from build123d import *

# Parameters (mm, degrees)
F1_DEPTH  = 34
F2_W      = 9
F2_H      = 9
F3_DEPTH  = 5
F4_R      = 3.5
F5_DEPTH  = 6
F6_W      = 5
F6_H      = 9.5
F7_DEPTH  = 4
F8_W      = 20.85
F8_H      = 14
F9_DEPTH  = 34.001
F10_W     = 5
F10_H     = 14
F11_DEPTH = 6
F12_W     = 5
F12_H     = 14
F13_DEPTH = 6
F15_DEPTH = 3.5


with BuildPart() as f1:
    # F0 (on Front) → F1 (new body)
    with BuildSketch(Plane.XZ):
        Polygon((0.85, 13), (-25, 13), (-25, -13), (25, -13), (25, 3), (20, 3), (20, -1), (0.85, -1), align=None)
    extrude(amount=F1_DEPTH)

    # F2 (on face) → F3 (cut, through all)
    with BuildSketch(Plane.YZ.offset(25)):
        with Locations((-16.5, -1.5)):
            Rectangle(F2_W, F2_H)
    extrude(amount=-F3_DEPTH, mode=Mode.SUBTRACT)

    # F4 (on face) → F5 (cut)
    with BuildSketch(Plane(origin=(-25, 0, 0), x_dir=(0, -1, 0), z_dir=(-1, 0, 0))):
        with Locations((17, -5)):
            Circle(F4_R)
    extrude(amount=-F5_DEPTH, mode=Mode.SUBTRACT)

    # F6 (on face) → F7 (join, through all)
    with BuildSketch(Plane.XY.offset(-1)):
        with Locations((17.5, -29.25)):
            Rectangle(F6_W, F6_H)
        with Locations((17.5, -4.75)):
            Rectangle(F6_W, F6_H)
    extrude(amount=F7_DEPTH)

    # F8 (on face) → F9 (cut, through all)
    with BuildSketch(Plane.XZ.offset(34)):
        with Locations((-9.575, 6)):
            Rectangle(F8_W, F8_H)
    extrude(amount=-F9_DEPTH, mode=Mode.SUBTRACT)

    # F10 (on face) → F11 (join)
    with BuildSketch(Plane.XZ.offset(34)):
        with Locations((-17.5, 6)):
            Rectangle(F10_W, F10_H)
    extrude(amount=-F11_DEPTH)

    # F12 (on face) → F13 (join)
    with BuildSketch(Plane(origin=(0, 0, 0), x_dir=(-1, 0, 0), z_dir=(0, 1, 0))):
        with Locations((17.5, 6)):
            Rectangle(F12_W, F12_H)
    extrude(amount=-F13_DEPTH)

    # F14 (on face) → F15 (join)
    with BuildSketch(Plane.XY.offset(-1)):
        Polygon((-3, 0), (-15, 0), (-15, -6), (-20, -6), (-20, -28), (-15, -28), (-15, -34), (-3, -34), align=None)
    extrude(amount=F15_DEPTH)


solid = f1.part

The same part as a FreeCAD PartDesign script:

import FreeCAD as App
import Part
import Sketcher

V = App.Vector

doc = App.newDocument("Part")
body = doc.addObject("PartDesign::Body", "Body")

# Sketch on XZ plane
sketch1 = body.newObject("Sketcher::SketchObject", "Sketch")
sketch1.AttachmentSupport = (doc.getObject("XZ_Plane"), [""])
sketch1.MapMode = "FlatFace"
sketch1.addGeometry(Part.LineSegment(V(0.85, 13, 0), V(-25, 13, 0)), False)
sketch1.addGeometry(Part.LineSegment(V(-25, 13, 0), V(-25, -13, 0)), False)
sketch1.addGeometry(Part.LineSegment(V(-25, -13, 0), V(25, -13, 0)), False)
sketch1.addGeometry(Part.LineSegment(V(25, -13, 0), V(25, 3, 0)), False)
sketch1.addGeometry(Part.LineSegment(V(25, 3, 0), V(20, 3, 0)), False)
sketch1.addGeometry(Part.LineSegment(V(20, 3, 0), V(20, -1, 0)), False)
sketch1.addGeometry(Part.LineSegment(V(20, -1, 0), V(0.85, -1, 0)), False)
sketch1.addGeometry(Part.LineSegment(V(0.85, -1, 0), V(0.85, 13, 0)), False)
sketch1.addConstraint(Sketcher.Constraint("Coincident", 0, 2, 1, 1))
sketch1.addConstraint(Sketcher.Constraint("Coincident", 1, 2, 2, 1))
sketch1.addConstraint(Sketcher.Constraint("Coincident", 2, 2, 3, 1))
sketch1.addConstraint(Sketcher.Constraint("Coincident", 3, 2, 4, 1))
sketch1.addConstraint(Sketcher.Constraint("Coincident", 4, 2, 5, 1))
sketch1.addConstraint(Sketcher.Constraint("Coincident", 5, 2, 6, 1))
sketch1.addConstraint(Sketcher.Constraint("Coincident", 6, 2, 7, 1))
sketch1.addConstraint(Sketcher.Constraint("Coincident", 7, 2, 0, 1))
sketch1.addConstraint(Sketcher.Constraint("Horizontal", 0))
sketch1.addConstraint(Sketcher.Constraint("Vertical", 1))
sketch1.addConstraint(Sketcher.Constraint("Horizontal", 2))
sketch1.addConstraint(Sketcher.Constraint("Vertical", 3))
sketch1.addConstraint(Sketcher.Constraint("Horizontal", 4))
sketch1.addConstraint(Sketcher.Constraint("Vertical", 5))
sketch1.addConstraint(Sketcher.Constraint("Horizontal", 6))
sketch1.addConstraint(Sketcher.Constraint("Vertical", 7))
sketch1.addConstraint(Sketcher.Constraint("Symmetric", 0, 2, 2, 2, -1, 1))
sketch1.addConstraint(Sketcher.Constraint("DistanceX", 2, 1, 2, 2, 50.0))
sketch1.addConstraint(Sketcher.Constraint("DistanceX", 4, 2, 4, 1, 5.0))
sketch1.addConstraint(Sketcher.Constraint("DistanceY", 1, 2, 1, 1, 26.0))
sketch1.addConstraint(Sketcher.Constraint("DistanceY", 3, 1, 3, 2, 16.0))
sketch1.addConstraint(Sketcher.Constraint("DistanceY", 5, 2, 5, 1, 4.0))
sketch1.addConstraint(Sketcher.Constraint("DistanceX", 0, 2, 0, 1, 25.85))
pad1 = body.newObject("PartDesign::Pad", "Pad")
pad1.Profile = sketch1
pad1.Length = 34

# Sketch on YZ plane
sketch2 = body.newObject("Sketcher::SketchObject", "Sketch001")
sketch2.AttachmentSupport = (doc.getObject("YZ_Plane"), [""])
sketch2.MapMode = "FlatFace"
sketch2.AttachmentOffset = App.Placement(V(0, 0, 25), App.Rotation())
sketch2.addGeometry(Part.LineSegment(V(-21, 3, 0), V(-21, -6, 0)), False)
sketch2.addGeometry(Part.LineSegment(V(-21, -6, 0), V(-12, -6, 0)), False)
sketch2.addGeometry(Part.LineSegment(V(-12, -6, 0), V(-12, 3, 0)), False)
sketch2.addGeometry(Part.LineSegment(V(-12, 3, 0), V(-21, 3, 0)), False)
sketch2.addConstraint(Sketcher.Constraint("Coincident", 0, 2, 1, 1))
sketch2.addConstraint(Sketcher.Constraint("Coincident", 1, 2, 2, 1))
sketch2.addConstraint(Sketcher.Constraint("Coincident", 2, 2, 3, 1))
sketch2.addConstraint(Sketcher.Constraint("Coincident", 3, 2, 0, 1))
sketch2.addConstraint(Sketcher.Constraint("Vertical", 0))
sketch2.addConstraint(Sketcher.Constraint("Horizontal", 1))
sketch2.addConstraint(Sketcher.Constraint("Vertical", 2))
sketch2.addConstraint(Sketcher.Constraint("Horizontal", 3))
sketch2.addConstraint(Sketcher.Constraint("Equal", 3, 0))
sketch2.addConstraint(Sketcher.Constraint("DistanceX", 1, 1, 1, 2, 9.0))
sketch2.addConstraint(Sketcher.Constraint("DistanceX", 0, 2, -1, 1, 21.0))
sketch2.addConstraint(Sketcher.Constraint("DistanceY", 0, 2, -1, 1, 6.0))
pocket1 = body.newObject("PartDesign::Pocket", "Pocket")
pocket1.Profile = sketch2
pocket1.Length = 5

# Sketch on YZ plane
sketch3 = body.newObject("Sketcher::SketchObject", "Sketch002")
sketch3.AttachmentSupport = (doc.getObject("YZ_Plane"), [""])
sketch3.MapMode = "FlatFace"
sketch3.AttachmentOffset = App.Placement(V(0, 0, -25), App.Rotation())
sketch3.addGeometry(Part.Circle(V(-17, -5, 0), V(0, 0, 1), 3.5), False)
sketch3.addConstraint(Sketcher.Constraint("Diameter", 0, 7.0))
sketch3.addConstraint(Sketcher.Constraint("DistanceX", 0, 3, -1, 1, 17.0))
sketch3.addConstraint(Sketcher.Constraint("DistanceY", 0, 3, -1, 1, 5.0))
pocket2 = body.newObject("PartDesign::Pocket", "Pocket001")
pocket2.Profile = sketch3
pocket2.Length = 6
pocket2.Reversed = True

# Sketch on XY plane
sketch4 = body.newObject("Sketcher::SketchObject", "Sketch003")
sketch4.AttachmentSupport = (doc.getObject("XY_Plane"), [""])
sketch4.MapMode = "FlatFace"
sketch4.AttachmentOffset = App.Placement(V(0, 0, -1), App.Rotation())
sketch4.addGeometry(Part.LineSegment(V(15, -24.5, 0), V(15, -34, 0)), False)
sketch4.addGeometry(Part.LineSegment(V(15, -34, 0), V(20, -34, 0)), False)
sketch4.addGeometry(Part.LineSegment(V(20, -34, 0), V(20, -24.5, 0)), False)
sketch4.addGeometry(Part.LineSegment(V(20, -24.5, 0), V(15, -24.5, 0)), False)
sketch4.addGeometry(Part.LineSegment(V(15, 0, 0), V(15, -9.5, 0)), False)
sketch4.addGeometry(Part.LineSegment(V(15, -9.5, 0), V(20, -9.5, 0)), False)
sketch4.addGeometry(Part.LineSegment(V(20, -9.5, 0), V(20, 0, 0)), False)
sketch4.addGeometry(Part.LineSegment(V(20, 0, 0), V(15, 0, 0)), False)
sketch4.addConstraint(Sketcher.Constraint("Coincident", 0, 2, 1, 1))
sketch4.addConstraint(Sketcher.Constraint("Coincident", 1, 2, 2, 1))
sketch4.addConstraint(Sketcher.Constraint("Coincident", 2, 2, 3, 1))
sketch4.addConstraint(Sketcher.Constraint("Coincident", 3, 2, 0, 1))
sketch4.addConstraint(Sketcher.Constraint("Coincident", 4, 2, 5, 1))
sketch4.addConstraint(Sketcher.Constraint("Coincident", 5, 2, 6, 1))
sketch4.addConstraint(Sketcher.Constraint("Coincident", 6, 2, 7, 1))
sketch4.addConstraint(Sketcher.Constraint("Coincident", 7, 2, 4, 1))
sketch4.addConstraint(Sketcher.Constraint("Vertical", 0))
sketch4.addConstraint(Sketcher.Constraint("Horizontal", 1))
sketch4.addConstraint(Sketcher.Constraint("Vertical", 2))
sketch4.addConstraint(Sketcher.Constraint("Horizontal", 3))
sketch4.addConstraint(Sketcher.Constraint("Vertical", 4))
sketch4.addConstraint(Sketcher.Constraint("Horizontal", 5))
sketch4.addConstraint(Sketcher.Constraint("Vertical", 6))
sketch4.addConstraint(Sketcher.Constraint("Horizontal", 7))
sketch4.addConstraint(Sketcher.Constraint("PointOnObject", 6, 2, -1))
sketch4.addConstraint(Sketcher.Constraint("Vertical", 3, 2, 4, 2))
sketch4.addConstraint(Sketcher.Constraint("Vertical", 2, 2, 5, 2))
sketch4.addConstraint(Sketcher.Constraint("Equal", 2, 4))
sketch4.addConstraint(Sketcher.Constraint("DistanceX", 1, 1, 1, 2, 5.0))
sketch4.addConstraint(Sketcher.Constraint("DistanceY", 0, 2, 0, 1, 9.5))
sketch4.addConstraint(Sketcher.Constraint("DistanceX", -1, 1, 0, 2, 15.0))
sketch4.addConstraint(Sketcher.Constraint("DistanceY", 0, 2, -1, 1, 34.0))
pad2 = body.newObject("PartDesign::Pad", "Pad001")
pad2.Profile = sketch4
pad2.Length = 4

# Sketch on XZ plane
sketch5 = body.newObject("Sketcher::SketchObject", "Sketch004")
sketch5.AttachmentSupport = (doc.getObject("XZ_Plane"), [""])
sketch5.MapMode = "FlatFace"
sketch5.AttachmentOffset = App.Placement(V(0, 0, 34), App.Rotation())
sketch5.addGeometry(Part.LineSegment(V(-20, 13, 0), V(-20, -1, 0)), False)
sketch5.addGeometry(Part.LineSegment(V(-20, -1, 0), V(0.85, -1, 0)), False)
sketch5.addGeometry(Part.LineSegment(V(0.85, -1, 0), V(0.85, 13, 0)), False)
sketch5.addGeometry(Part.LineSegment(V(0.85, 13, 0), V(-20, 13, 0)), False)
sketch5.addConstraint(Sketcher.Constraint("Coincident", 0, 2, 1, 1))
sketch5.addConstraint(Sketcher.Constraint("Coincident", 1, 2, 2, 1))
sketch5.addConstraint(Sketcher.Constraint("Coincident", 2, 2, 3, 1))
sketch5.addConstraint(Sketcher.Constraint("Coincident", 3, 2, 0, 1))
sketch5.addConstraint(Sketcher.Constraint("Vertical", 0))
sketch5.addConstraint(Sketcher.Constraint("Horizontal", 1))
sketch5.addConstraint(Sketcher.Constraint("Vertical", 2))
sketch5.addConstraint(Sketcher.Constraint("Horizontal", 3))
sketch5.addConstraint(Sketcher.Constraint("DistanceY", 0, 2, 0, 1, 14.0))
sketch5.addConstraint(Sketcher.Constraint("DistanceX", 0, 2, -1, 1, 20.0))
sketch5.addConstraint(Sketcher.Constraint("DistanceY", 0, 2, -1, 1, 1.0))
sketch5.addConstraint(Sketcher.Constraint("DistanceX", 1, 1, 1, 2, 20.85))
pocket3 = body.newObject("PartDesign::Pocket", "Pocket002")
pocket3.Profile = sketch5
pocket3.Type = "ThroughAll"

# Sketch on XZ plane
sketch6 = body.newObject("Sketcher::SketchObject", "Sketch005")
sketch6.AttachmentSupport = (doc.getObject("XZ_Plane"), [""])
sketch6.MapMode = "FlatFace"
sketch6.AttachmentOffset = App.Placement(V(0, 0, 34), App.Rotation())
sketch6.addGeometry(Part.LineSegment(V(-20, 13, 0), V(-20, -1, 0)), False)
sketch6.addGeometry(Part.LineSegment(V(-20, -1, 0), V(-15, -1, 0)), False)
sketch6.addGeometry(Part.LineSegment(V(-15, -1, 0), V(-15, 13, 0)), False)
sketch6.addGeometry(Part.LineSegment(V(-15, 13, 0), V(-20, 13, 0)), False)
sketch6.addConstraint(Sketcher.Constraint("Coincident", 0, 2, 1, 1))
sketch6.addConstraint(Sketcher.Constraint("Coincident", 1, 2, 2, 1))
sketch6.addConstraint(Sketcher.Constraint("Coincident", 2, 2, 3, 1))
sketch6.addConstraint(Sketcher.Constraint("Coincident", 3, 2, 0, 1))
sketch6.addConstraint(Sketcher.Constraint("Vertical", 0))
sketch6.addConstraint(Sketcher.Constraint("Horizontal", 1))
sketch6.addConstraint(Sketcher.Constraint("Vertical", 2))
sketch6.addConstraint(Sketcher.Constraint("Horizontal", 3))
sketch6.addConstraint(Sketcher.Constraint("DistanceX", 1, 1, 1, 2, 5.0))
sketch6.addConstraint(Sketcher.Constraint("DistanceY", 0, 2, 0, 1, 14.0))
sketch6.addConstraint(Sketcher.Constraint("DistanceX", 0, 2, -1, 1, 20.0))
sketch6.addConstraint(Sketcher.Constraint("DistanceY", 0, 2, -1, 1, 1.0))
pad3 = body.newObject("PartDesign::Pad", "Pad002")
pad3.Profile = sketch6
pad3.Length = 6
pad3.Reversed = True

# Sketch on XZ plane
sketch7 = body.newObject("Sketcher::SketchObject", "Sketch006")
sketch7.AttachmentSupport = (doc.getObject("XZ_Plane"), [""])
sketch7.MapMode = "FlatFace"
sketch7.addGeometry(Part.LineSegment(V(-15, 13, 0), V(-15, -1, 0)), False)
sketch7.addGeometry(Part.LineSegment(V(-15, -1, 0), V(-20, -1, 0)), False)
sketch7.addGeometry(Part.LineSegment(V(-20, -1, 0), V(-20, 13, 0)), False)
sketch7.addGeometry(Part.LineSegment(V(-20, 13, 0), V(-15, 13, 0)), False)
sketch7.addConstraint(Sketcher.Constraint("Coincident", 0, 2, 1, 1))
sketch7.addConstraint(Sketcher.Constraint("Coincident", 1, 2, 2, 1))
sketch7.addConstraint(Sketcher.Constraint("Coincident", 2, 2, 3, 1))
sketch7.addConstraint(Sketcher.Constraint("Coincident", 3, 2, 0, 1))
sketch7.addConstraint(Sketcher.Constraint("Vertical", 0))
sketch7.addConstraint(Sketcher.Constraint("Horizontal", 1))
sketch7.addConstraint(Sketcher.Constraint("Vertical", 2))
sketch7.addConstraint(Sketcher.Constraint("Horizontal", 3))
sketch7.addConstraint(Sketcher.Constraint("DistanceX", 1, 2, 1, 1, 5.0))
sketch7.addConstraint(Sketcher.Constraint("DistanceY", 0, 2, 0, 1, 14.0))
sketch7.addConstraint(Sketcher.Constraint("DistanceX", 0, 2, -1, 1, 15.0))
sketch7.addConstraint(Sketcher.Constraint("DistanceY", 0, 2, -1, 1, 1.0))
pad4 = body.newObject("PartDesign::Pad", "Pad003")
pad4.Profile = sketch7
pad4.Length = 6

# Sketch on XY plane
sketch8 = body.newObject("Sketcher::SketchObject", "Sketch007")
sketch8.AttachmentSupport = (doc.getObject("XY_Plane"), [""])
sketch8.MapMode = "FlatFace"
sketch8.AttachmentOffset = App.Placement(V(0, 0, -1), App.Rotation())
sketch8.addGeometry(Part.LineSegment(V(-3, 0, 0), V(-15, 0, 0)), False)
sketch8.addGeometry(Part.LineSegment(V(-15, 0, 0), V(-15, -6, 0)), False)
sketch8.addGeometry(Part.LineSegment(V(-15, -6, 0), V(-20, -6, 0)), False)
sketch8.addGeometry(Part.LineSegment(V(-20, -6, 0), V(-20, -28, 0)), False)
sketch8.addGeometry(Part.LineSegment(V(-20, -28, 0), V(-15, -28, 0)), False)
sketch8.addGeometry(Part.LineSegment(V(-15, -28, 0), V(-15, -34, 0)), False)
sketch8.addGeometry(Part.LineSegment(V(-15, -34, 0), V(-3, -34, 0)), False)
sketch8.addGeometry(Part.LineSegment(V(-3, -34, 0), V(-3, 0, 0)), False)
sketch8.addConstraint(Sketcher.Constraint("Coincident", 0, 2, 1, 1))
sketch8.addConstraint(Sketcher.Constraint("Coincident", 1, 2, 2, 1))
sketch8.addConstraint(Sketcher.Constraint("Coincident", 2, 2, 3, 1))
sketch8.addConstraint(Sketcher.Constraint("Coincident", 3, 2, 4, 1))
sketch8.addConstraint(Sketcher.Constraint("Coincident", 4, 2, 5, 1))
sketch8.addConstraint(Sketcher.Constraint("Coincident", 5, 2, 6, 1))
sketch8.addConstraint(Sketcher.Constraint("Coincident", 6, 2, 7, 1))
sketch8.addConstraint(Sketcher.Constraint("Coincident", 7, 2, 0, 1))
sketch8.addConstraint(Sketcher.Constraint("Horizontal", 0))
sketch8.addConstraint(Sketcher.Constraint("Vertical", 1))
sketch8.addConstraint(Sketcher.Constraint("Horizontal", 2))
sketch8.addConstraint(Sketcher.Constraint("Vertical", 3))
sketch8.addConstraint(Sketcher.Constraint("Horizontal", 4))
sketch8.addConstraint(Sketcher.Constraint("Vertical", 5))
sketch8.addConstraint(Sketcher.Constraint("Horizontal", 6))
sketch8.addConstraint(Sketcher.Constraint("Vertical", 7))
sketch8.addConstraint(Sketcher.Constraint("PointOnObject", 0, 2, -1))
sketch8.addConstraint(Sketcher.Constraint("Vertical", 1, 2, 4, 2))
sketch8.addConstraint(Sketcher.Constraint("Equal", 1, 5))
sketch8.addConstraint(Sketcher.Constraint("DistanceX", 0, 2, 0, 1, 12.0))
sketch8.addConstraint(Sketcher.Constraint("DistanceX", 2, 2, 2, 1, 5.0))
sketch8.addConstraint(Sketcher.Constraint("DistanceY", 1, 2, 1, 1, 6.0))
sketch8.addConstraint(Sketcher.Constraint("DistanceY", 3, 2, 3, 1, 22.0))
sketch8.addConstraint(Sketcher.Constraint("DistanceX", 0, 2, -1, 1, 15.0))
pad5 = body.newObject("PartDesign::Pad", "Pad004")
pad5.Profile = sketch8
pad5.Length = 3.5

doc.recompute()
